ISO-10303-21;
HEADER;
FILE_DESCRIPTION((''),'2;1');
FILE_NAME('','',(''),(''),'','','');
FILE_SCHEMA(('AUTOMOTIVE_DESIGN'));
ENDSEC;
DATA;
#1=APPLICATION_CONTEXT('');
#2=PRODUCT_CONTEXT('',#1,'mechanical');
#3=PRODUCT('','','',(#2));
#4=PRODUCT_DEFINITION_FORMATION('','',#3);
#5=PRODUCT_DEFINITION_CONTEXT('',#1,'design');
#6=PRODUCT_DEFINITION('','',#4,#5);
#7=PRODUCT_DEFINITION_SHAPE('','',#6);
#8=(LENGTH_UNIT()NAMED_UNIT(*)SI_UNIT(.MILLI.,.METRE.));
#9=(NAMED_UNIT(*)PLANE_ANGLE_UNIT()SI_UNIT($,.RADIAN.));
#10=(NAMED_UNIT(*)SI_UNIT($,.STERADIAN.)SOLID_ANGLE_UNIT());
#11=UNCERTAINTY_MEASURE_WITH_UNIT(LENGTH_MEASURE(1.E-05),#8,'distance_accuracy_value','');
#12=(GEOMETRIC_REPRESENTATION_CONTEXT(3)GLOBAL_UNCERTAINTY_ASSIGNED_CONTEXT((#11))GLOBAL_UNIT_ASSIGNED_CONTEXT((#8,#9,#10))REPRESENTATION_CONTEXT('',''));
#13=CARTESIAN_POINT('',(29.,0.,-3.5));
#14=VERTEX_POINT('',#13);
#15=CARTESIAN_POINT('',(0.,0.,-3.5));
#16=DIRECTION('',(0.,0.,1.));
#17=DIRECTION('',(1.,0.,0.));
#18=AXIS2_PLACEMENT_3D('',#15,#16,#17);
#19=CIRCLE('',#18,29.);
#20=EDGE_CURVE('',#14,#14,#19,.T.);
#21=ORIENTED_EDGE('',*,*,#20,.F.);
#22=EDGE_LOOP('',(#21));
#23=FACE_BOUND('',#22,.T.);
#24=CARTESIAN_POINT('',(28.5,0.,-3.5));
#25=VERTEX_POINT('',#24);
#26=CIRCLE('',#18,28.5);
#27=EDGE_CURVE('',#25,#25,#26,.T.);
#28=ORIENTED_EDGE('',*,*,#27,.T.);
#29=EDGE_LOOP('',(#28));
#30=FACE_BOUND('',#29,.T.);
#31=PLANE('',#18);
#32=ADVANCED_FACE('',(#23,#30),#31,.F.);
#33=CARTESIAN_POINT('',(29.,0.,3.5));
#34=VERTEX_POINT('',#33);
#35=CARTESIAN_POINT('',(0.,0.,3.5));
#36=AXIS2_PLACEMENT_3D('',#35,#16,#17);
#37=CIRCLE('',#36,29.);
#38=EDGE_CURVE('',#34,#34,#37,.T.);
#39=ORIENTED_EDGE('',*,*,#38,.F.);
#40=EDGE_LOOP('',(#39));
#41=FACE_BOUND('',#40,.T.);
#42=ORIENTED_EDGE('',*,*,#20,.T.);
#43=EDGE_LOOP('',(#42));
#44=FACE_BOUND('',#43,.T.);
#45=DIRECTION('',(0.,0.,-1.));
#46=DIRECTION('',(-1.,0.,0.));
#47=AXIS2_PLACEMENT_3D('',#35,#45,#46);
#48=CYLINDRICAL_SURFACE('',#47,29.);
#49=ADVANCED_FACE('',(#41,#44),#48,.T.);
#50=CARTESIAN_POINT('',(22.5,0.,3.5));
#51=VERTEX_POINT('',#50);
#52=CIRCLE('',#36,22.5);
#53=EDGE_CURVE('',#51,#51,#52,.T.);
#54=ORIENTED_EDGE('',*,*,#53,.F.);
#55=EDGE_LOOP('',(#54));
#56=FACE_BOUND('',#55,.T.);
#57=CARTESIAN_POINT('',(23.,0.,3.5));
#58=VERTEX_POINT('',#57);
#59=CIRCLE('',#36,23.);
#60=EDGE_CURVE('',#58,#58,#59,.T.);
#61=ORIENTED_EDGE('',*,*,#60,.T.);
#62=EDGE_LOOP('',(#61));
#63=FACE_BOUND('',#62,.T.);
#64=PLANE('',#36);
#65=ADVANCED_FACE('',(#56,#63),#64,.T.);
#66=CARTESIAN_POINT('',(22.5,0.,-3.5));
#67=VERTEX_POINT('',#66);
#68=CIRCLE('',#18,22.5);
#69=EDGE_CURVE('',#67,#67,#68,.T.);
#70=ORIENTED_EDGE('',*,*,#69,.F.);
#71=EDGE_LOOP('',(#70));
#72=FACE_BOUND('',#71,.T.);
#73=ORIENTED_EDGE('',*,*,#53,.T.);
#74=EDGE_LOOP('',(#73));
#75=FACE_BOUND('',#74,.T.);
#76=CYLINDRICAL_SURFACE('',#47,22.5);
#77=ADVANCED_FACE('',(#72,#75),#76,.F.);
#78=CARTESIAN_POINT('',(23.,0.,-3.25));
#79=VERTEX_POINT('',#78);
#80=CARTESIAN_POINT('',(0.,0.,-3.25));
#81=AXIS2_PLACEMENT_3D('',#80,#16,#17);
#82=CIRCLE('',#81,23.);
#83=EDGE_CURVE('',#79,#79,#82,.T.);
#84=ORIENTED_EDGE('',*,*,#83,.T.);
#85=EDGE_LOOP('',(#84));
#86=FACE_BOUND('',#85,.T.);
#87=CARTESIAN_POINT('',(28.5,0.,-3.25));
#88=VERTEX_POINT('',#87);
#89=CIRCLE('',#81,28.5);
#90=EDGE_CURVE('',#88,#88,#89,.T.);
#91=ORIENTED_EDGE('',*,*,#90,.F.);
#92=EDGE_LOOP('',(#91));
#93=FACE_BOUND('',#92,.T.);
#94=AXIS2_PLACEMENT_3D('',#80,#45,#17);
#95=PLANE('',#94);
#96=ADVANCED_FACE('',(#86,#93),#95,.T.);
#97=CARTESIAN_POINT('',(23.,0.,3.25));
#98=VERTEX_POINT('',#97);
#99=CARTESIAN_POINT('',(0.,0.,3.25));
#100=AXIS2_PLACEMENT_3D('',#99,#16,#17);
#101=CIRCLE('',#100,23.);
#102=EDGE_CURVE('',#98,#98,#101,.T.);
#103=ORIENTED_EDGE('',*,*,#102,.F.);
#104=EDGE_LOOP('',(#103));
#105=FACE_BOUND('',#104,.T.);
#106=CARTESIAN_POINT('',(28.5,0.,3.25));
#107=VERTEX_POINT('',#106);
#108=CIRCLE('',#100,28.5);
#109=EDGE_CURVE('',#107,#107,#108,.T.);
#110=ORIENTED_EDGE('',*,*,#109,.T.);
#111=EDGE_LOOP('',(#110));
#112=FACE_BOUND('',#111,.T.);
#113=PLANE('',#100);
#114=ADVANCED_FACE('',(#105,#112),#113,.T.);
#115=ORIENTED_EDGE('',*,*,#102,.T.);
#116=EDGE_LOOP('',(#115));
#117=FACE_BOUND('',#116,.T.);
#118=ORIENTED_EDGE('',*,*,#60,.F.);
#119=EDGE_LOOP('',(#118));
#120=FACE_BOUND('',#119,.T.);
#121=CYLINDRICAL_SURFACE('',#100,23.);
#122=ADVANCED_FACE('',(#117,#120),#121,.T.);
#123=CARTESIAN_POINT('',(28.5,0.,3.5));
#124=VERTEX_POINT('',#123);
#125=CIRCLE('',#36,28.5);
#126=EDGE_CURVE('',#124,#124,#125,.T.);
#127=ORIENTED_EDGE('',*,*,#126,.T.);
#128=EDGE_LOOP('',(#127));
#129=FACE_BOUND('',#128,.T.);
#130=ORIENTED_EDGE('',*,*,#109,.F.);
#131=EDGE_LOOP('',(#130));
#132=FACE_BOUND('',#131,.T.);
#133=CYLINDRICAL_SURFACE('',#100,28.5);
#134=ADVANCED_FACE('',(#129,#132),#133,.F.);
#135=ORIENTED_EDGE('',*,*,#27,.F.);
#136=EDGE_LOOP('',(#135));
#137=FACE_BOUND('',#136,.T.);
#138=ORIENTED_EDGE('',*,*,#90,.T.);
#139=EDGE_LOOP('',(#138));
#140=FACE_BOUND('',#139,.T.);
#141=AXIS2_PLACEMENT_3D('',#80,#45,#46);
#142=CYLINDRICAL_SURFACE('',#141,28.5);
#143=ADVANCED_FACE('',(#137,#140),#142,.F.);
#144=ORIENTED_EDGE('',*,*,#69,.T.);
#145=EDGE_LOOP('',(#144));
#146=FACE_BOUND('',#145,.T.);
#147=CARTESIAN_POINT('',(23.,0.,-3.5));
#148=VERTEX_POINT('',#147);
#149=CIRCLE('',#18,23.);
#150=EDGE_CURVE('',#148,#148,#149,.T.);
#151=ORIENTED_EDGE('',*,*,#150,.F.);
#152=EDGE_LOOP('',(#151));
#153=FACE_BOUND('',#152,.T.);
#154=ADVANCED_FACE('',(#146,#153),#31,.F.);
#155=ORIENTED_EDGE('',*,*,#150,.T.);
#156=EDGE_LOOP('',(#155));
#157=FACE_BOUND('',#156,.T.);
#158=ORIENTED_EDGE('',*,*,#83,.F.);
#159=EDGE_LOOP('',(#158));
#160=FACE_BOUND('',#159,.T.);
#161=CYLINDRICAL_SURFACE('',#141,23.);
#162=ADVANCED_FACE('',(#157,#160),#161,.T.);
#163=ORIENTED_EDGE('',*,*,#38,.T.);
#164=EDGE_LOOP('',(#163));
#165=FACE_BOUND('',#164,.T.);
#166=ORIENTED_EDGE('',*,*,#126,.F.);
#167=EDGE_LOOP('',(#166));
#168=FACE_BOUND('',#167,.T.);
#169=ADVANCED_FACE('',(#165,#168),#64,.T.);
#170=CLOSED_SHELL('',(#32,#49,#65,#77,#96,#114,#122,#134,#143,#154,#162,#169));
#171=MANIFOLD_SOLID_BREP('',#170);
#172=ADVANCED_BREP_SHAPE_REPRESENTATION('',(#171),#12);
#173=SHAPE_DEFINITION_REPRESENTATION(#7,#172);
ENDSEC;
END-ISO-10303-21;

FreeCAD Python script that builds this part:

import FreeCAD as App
import Part
import Sketcher
from FreeCAD import Vector

doc = App.newDocument("Part")
params = doc.addObject("Spreadsheet::Sheet", "Params")
for row, (alias, value) in enumerate([
    ("sketch1_diameter", "58 mm"),
    ("sketch1_diameter2", "45 mm"),
    ("pad1_length", "7 mm"),
    ("sketch2_diameter", "57 mm"),
    ("sketch2_diameter2", "46 mm"),
    ("pocket1_length", "0.25 mm"),
], start=1):
    params.set(f"A{row}", alias)
    params.set(f"B{row}", "=" + value)
    params.setAlias(f"B{row}", alias)

body = doc.addObject("PartDesign::Body", "Body")

# Sketch on XY plane
sketch1 = doc.addObject("Sketcher::SketchObject", "Sketch")
body.addObject(sketch1)
sketch1.AttachmentSupport = (doc.XY_Plane, [""])
sketch1.MapMode = "FlatFace"
sketch1.addGeometry([
    Part.Circle(Vector(0, 0, 0), Vector(0, 0, 1), 29),
    Part.Circle(Vector(0, 0, 0), Vector(0, 0, 1), 22),
], False)
sketch1.addConstraint([
    Sketcher.Constraint("Coincident", 0, 3, -1, 1),
    Sketcher.Constraint("Coincident", 1, 3, -1, 1),
    Sketcher.Constraint("Diameter", 0, 58.0),
    Sketcher.Constraint("Diameter", 1, 45.0),
])
sketch1.setExpression("Constraints[2]", "Params.sketch1_diameter")
sketch1.setExpression("Constraints[3]", "Params.sketch1_diameter2")
pad1 = doc.addObject("PartDesign::Pad", "Pad")
body.addObject(pad1)
pad1.Profile = sketch1
pad1.setExpression("Length", "Params.pad1_length")
pad1.Midplane = True

# Sketch on XY plane
sketch2 = doc.addObject("Sketcher::SketchObject", "Sketch001")
body.addObject(sketch2)
sketch2.AttachmentSupport = (doc.XY_Plane, [""])
sketch2.MapMode = "FlatFace"
sketch2.AttachmentOffset = App.Placement(Vector(0, 0, 3.5), App.Rotation())
sketch2.addGeometry([
    Part.Circle(Vector(0, 0, 0), Vector(0, 0, 1), 28),
    Part.Circle(Vector(0, 0, 0), Vector(0, 0, 1), 23),
], False)
sketch2.addConstraint([
    Sketcher.Constraint("Coincident", 0, 3, -1, 1),
    Sketcher.Constraint("Coincident", 1, 3, -1, 1),
    Sketcher.Constraint("Diameter", 0, 57.0),
    Sketcher.Constraint("Diameter", 1, 46.0),
])
sketch2.setExpression("Constraints[2]", "Params.sketch2_diameter")
sketch2.setExpression("Constraints[3]", "Params.sketch2_diameter2")
pocket1 = doc.addObject("PartDesign::Pocket", "Pocket")
body.addObject(pocket1)
pocket1.Profile = sketch2
pocket1.setExpression("Length", "Params.pocket1_length")
doc.recompute()

mirrored = doc.addObject("PartDesign::Mirrored", "Mirrored")
body.addObject(mirrored)
mirrored.Originals = [pocket1]
mirrored.MirrorPlane = (doc.XY_Plane, [""])
body.Tip = mirrored

doc.recompute()
